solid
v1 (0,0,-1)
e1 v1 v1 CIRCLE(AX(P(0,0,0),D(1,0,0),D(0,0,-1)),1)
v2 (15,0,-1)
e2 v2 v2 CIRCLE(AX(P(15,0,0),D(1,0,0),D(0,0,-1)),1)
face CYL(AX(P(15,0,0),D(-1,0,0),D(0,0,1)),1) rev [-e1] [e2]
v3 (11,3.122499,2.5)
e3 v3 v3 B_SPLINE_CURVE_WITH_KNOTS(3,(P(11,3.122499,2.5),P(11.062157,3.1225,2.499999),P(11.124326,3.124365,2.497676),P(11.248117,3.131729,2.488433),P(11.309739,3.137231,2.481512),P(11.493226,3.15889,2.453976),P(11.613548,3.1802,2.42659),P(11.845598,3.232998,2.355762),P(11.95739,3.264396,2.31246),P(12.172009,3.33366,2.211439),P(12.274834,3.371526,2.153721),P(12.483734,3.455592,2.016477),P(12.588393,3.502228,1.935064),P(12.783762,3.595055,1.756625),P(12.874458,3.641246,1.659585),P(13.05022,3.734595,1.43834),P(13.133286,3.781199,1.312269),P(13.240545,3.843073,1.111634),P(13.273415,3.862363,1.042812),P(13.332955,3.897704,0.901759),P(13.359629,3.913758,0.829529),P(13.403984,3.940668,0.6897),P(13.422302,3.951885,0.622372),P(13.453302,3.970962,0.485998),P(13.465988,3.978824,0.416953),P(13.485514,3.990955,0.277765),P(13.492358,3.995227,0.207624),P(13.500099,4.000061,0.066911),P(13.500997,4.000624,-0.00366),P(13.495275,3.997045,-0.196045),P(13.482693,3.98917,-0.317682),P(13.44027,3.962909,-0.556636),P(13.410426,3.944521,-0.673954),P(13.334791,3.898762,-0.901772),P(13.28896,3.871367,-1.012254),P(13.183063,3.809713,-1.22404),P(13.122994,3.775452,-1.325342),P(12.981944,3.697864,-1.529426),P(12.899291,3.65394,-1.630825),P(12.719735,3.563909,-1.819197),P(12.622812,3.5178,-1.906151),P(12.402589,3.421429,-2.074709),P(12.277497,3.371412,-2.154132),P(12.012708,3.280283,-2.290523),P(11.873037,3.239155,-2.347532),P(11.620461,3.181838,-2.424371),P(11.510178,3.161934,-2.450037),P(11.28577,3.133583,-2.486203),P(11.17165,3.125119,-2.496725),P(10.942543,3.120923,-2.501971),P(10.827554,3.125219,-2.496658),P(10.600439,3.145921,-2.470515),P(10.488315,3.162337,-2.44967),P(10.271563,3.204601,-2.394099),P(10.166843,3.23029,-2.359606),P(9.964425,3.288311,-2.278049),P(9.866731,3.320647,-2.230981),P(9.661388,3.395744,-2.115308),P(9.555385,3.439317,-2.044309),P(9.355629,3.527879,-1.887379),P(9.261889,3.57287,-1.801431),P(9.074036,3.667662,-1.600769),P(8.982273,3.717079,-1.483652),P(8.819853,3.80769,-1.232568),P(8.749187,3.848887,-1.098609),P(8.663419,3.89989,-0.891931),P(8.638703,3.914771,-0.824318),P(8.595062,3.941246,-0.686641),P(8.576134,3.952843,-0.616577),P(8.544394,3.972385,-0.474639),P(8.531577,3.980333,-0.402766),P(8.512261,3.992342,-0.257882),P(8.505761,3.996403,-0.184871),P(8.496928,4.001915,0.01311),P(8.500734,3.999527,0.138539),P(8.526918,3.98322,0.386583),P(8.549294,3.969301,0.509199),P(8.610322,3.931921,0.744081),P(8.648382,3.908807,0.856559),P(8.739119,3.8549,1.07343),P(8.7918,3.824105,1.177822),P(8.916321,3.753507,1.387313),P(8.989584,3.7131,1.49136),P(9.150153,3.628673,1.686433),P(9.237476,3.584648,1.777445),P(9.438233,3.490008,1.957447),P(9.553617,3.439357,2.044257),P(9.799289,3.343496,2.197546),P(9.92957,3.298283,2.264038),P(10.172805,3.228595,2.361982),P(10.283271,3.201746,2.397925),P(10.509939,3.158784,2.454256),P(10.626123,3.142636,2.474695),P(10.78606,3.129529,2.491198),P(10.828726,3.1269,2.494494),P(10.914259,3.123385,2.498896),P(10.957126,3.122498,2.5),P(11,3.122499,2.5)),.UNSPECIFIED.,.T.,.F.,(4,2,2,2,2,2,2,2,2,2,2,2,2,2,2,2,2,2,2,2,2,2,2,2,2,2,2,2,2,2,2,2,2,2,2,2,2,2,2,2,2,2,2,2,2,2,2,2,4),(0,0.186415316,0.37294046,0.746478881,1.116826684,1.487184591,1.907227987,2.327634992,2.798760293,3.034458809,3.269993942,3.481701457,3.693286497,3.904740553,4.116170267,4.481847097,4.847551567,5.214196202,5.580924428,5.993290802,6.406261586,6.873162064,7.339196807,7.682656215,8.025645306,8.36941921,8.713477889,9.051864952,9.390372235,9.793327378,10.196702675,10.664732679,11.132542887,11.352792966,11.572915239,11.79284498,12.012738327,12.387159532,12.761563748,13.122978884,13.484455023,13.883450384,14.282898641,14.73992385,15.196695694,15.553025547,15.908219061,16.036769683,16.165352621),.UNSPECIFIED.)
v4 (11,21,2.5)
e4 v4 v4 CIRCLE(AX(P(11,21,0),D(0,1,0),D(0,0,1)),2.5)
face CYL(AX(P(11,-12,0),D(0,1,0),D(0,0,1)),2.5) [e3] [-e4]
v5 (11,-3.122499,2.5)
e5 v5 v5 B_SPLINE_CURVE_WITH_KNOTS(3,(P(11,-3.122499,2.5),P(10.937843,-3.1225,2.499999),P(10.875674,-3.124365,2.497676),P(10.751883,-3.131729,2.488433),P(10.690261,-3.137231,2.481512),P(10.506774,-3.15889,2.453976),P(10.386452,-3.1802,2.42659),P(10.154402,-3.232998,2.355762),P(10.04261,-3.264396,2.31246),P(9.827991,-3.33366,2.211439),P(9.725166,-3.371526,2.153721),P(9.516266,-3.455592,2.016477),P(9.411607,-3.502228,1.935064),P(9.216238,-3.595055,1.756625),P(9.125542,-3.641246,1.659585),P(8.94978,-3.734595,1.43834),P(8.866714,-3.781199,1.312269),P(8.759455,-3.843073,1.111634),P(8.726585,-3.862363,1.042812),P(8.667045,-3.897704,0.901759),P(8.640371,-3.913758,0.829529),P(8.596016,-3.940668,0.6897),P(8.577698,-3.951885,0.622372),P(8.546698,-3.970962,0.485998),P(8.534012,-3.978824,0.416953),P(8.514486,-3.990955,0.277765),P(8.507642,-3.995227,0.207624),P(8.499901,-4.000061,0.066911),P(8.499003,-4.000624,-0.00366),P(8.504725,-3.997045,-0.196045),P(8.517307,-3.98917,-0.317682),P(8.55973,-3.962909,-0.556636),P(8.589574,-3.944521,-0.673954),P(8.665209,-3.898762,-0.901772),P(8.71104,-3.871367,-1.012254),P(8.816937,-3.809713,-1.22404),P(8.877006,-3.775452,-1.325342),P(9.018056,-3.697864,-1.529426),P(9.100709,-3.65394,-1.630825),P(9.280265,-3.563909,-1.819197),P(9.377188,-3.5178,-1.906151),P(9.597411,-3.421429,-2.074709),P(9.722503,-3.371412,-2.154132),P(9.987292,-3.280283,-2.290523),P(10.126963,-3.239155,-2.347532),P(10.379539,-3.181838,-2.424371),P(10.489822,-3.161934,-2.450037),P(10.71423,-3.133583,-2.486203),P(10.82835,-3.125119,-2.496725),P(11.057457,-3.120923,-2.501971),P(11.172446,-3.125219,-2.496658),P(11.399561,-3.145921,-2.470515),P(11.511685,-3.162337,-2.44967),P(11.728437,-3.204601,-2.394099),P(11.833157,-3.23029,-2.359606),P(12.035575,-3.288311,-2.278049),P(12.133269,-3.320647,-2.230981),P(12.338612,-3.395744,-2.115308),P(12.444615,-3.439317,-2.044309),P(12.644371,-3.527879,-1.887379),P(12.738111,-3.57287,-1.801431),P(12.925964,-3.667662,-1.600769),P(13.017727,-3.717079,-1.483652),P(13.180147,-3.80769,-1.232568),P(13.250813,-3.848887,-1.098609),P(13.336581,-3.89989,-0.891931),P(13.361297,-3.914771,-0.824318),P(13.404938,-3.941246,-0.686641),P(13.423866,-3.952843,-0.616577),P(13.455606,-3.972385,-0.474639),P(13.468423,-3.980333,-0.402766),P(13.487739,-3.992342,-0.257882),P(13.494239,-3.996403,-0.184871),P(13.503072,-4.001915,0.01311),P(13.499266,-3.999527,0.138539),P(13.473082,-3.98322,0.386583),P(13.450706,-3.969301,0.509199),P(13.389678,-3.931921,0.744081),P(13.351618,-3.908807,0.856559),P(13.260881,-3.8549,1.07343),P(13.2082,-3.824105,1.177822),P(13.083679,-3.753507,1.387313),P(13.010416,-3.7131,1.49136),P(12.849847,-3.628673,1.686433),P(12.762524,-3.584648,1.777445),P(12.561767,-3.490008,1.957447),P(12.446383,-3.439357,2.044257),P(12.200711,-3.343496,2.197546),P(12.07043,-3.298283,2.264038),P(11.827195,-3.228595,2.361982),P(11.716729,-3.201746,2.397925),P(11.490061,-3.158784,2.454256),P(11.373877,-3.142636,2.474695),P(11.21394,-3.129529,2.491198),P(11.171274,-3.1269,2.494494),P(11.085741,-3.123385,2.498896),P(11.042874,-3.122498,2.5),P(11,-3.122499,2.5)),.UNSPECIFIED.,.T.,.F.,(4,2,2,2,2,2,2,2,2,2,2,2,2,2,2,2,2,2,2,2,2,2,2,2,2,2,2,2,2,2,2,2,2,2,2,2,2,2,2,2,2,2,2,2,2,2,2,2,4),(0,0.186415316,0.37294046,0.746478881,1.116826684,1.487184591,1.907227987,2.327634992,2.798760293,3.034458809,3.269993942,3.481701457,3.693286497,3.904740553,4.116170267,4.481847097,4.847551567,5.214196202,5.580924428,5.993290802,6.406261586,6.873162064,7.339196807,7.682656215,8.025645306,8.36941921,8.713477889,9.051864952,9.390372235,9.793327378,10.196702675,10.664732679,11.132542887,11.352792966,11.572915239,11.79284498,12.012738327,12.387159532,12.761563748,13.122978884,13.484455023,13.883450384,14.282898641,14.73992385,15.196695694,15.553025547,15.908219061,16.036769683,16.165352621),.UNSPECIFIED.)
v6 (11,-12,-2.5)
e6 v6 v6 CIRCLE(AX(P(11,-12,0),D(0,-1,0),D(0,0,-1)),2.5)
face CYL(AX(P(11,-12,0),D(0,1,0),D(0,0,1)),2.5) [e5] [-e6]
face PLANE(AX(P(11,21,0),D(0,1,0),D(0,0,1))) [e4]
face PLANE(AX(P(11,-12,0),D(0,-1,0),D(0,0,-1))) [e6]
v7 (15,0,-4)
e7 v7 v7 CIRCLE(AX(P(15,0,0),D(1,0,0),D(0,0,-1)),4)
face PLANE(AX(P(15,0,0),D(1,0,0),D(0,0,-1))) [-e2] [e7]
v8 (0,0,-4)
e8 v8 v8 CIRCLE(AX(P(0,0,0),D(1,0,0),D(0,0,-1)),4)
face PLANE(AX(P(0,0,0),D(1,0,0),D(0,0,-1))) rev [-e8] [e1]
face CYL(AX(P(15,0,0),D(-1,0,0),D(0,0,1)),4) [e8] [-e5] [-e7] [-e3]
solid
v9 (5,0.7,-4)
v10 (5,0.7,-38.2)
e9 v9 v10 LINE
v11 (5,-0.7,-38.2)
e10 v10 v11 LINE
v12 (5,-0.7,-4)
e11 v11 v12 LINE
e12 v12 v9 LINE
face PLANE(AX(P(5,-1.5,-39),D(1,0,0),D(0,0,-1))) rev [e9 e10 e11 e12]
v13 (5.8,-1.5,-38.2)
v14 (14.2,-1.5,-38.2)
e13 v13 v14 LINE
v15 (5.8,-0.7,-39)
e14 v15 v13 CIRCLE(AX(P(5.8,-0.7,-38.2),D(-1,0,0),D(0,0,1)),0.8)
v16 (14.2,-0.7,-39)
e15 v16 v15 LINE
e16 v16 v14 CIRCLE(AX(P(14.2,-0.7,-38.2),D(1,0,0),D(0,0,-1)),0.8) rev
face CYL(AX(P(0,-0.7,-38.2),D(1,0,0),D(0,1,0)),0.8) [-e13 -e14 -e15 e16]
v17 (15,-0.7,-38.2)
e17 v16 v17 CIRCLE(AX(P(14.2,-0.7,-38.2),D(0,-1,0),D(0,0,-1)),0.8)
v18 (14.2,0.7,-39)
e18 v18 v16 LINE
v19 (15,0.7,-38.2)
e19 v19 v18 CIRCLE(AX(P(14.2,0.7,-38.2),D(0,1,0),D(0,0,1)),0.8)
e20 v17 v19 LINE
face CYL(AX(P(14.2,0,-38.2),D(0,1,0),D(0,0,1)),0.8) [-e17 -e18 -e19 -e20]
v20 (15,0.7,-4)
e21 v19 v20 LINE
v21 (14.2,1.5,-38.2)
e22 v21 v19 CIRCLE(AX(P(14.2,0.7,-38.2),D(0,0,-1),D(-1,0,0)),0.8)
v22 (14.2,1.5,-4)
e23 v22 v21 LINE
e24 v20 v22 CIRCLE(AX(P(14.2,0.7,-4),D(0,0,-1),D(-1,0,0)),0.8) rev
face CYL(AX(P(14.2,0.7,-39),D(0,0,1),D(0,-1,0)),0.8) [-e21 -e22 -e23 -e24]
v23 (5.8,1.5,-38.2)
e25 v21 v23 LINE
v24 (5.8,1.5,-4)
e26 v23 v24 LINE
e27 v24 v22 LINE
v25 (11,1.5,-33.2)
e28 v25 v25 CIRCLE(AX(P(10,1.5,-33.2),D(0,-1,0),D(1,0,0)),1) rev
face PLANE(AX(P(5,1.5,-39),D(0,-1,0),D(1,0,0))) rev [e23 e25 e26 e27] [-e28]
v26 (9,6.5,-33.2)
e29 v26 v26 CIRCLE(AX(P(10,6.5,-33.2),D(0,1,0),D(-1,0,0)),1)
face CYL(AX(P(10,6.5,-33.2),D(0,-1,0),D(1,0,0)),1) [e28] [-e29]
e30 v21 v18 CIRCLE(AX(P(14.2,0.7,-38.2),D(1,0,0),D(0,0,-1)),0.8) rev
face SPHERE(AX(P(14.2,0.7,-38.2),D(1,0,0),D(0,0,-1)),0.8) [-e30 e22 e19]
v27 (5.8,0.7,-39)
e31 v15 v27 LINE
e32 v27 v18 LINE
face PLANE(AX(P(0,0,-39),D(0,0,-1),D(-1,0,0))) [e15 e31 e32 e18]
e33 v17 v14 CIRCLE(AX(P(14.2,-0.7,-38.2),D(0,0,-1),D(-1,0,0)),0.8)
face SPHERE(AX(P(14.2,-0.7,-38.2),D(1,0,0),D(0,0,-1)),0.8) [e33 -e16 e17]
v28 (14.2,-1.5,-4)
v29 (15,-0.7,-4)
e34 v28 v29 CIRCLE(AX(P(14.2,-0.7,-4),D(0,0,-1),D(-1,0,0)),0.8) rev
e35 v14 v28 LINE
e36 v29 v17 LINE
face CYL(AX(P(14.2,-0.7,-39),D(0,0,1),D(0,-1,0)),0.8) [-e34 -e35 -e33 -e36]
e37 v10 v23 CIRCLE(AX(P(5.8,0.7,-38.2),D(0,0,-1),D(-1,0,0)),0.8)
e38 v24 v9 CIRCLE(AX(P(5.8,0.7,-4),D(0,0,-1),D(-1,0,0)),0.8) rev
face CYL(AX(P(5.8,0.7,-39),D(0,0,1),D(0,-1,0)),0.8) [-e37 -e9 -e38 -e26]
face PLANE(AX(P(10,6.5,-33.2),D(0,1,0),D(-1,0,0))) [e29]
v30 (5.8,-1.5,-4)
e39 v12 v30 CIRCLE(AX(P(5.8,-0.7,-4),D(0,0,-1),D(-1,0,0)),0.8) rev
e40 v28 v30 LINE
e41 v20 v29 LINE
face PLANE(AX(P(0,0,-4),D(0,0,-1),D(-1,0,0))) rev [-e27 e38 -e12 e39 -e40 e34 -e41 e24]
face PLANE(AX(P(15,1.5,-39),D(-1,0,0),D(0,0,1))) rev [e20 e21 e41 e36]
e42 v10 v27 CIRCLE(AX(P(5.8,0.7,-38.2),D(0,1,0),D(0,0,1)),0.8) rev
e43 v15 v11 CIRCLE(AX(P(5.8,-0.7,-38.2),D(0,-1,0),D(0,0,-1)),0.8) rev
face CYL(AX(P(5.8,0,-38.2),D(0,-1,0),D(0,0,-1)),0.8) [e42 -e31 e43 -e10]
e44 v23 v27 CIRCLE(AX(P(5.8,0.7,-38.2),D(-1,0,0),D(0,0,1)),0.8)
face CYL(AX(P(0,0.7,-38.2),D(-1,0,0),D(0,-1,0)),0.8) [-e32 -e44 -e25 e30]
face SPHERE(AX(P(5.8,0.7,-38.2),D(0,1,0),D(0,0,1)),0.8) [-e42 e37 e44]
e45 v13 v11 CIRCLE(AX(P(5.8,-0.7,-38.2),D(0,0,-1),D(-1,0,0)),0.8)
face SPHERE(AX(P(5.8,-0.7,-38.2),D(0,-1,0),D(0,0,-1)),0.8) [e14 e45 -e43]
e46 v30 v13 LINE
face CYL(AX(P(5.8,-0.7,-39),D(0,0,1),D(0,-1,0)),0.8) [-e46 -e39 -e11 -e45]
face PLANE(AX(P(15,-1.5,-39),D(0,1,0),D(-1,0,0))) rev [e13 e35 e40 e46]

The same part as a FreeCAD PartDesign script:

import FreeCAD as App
import Part
import Sketcher
from FreeCAD import Vector
Q = App.Units.Quantity


def edges_at(feature, points):
    """Names of the edges that pass closest to the given points."""
    edges = feature.Shape.Edges
    near = lambda p: min(range(len(edges)), key=lambda i: edges[i].distToShape(Part.Vertex(*p))[0])
    return sorted({f"Edge{near(p) + 1}" for p in points})

doc = App.newDocument("Part")
body = doc.addObject("PartDesign::Body", "Body")

sketch1 = body.newObject("Sketcher::SketchObject", "Sketch")
sketch1.AttachmentSupport = (doc.getObject("YZ_Plane"), [""])
sketch1.MapMode = "FlatFace"
sketch1.addGeometry([
    Part.Circle(Vector(0, 0, 0), Vector(0, 0, 1), 4),
    Part.Circle(Vector(0, 0, 0), Vector(0, 0, 1), 1),
], False)
sketch1.addConstraint([
    Sketcher.Constraint("Coincident", 0, 3, -1, 1),
    Sketcher.Constraint("Coincident", 1, 3, -1, 1),
    Sketcher.Constraint("Diameter", 0, Q("8 mm")),
    Sketcher.Constraint("Diameter", 1, Q("2 mm")),
])
pad1 = body.newObject("PartDesign::Pad", "Pad")
pad1.Profile = sketch1
pad1.Length = 15
body2 = doc.addObject("PartDesign::Body", "Body001")

sketch2 = body2.newObject("Sketcher::SketchObject", "Sketch001")
sketch2.AttachmentSupport = (doc.getObject("XZ_Plane001"), [""])
sketch2.MapMode = "FlatFace"
sketch2.AttachmentOffset = App.Placement(Vector(0, 0, -4), App.Rotation())
sketch2.addGeometry(Part.Circle(Vector(11, 0, 0), Vector(0, 0, 1), 2.5), False)
sketch2.addConstraint([
    Sketcher.Constraint("PointOnObject", 0, 3, -1),
    Sketcher.Constraint("Diameter", 0, Q("5 mm")),
    Sketcher.Constraint("DistanceX", -1, 1, 0, 3, Q("11 mm")),
])
pad2 = body2.newObject("PartDesign::Pad", "Pad001")
pad2.Profile = sketch2
pad2.Length = 17
pad2.Reversed = True
body.AllowCompound = True
doc.recompute()

boolean = body.newObject("PartDesign::Boolean", "Boolean")
boolean.Type = "Fuse"
boolean.addObjects([body2])

sketch3 = body.newObject("Sketcher::SketchObject", "Sketch002")
sketch3.AttachmentSupport = (doc.getObject("XZ_Plane"), [""])
sketch3.MapMode = "FlatFace"
sketch3.AttachmentOffset = App.Placement(Vector(0, 0, -4), App.Rotation())
sketch3.addGeometry(Part.Circle(Vector(11, 0, 0), Vector(0, 0, 1), 2.5), False)
sketch3.addConstraint([
    Sketcher.Constraint("PointOnObject", 0, 3, -1),
    Sketcher.Constraint("Diameter", 0, Q("5 mm")),
    Sketcher.Constraint("DistanceX", -1, 1, 0, 3, Q("11 mm")),
])
pad3 = body.newObject("PartDesign::Pad", "Pad002")
pad3.Profile = sketch3
pad3.Length = 16

sketch4 = body.newObject("Sketcher::SketchObject", "Sketch003")
sketch4.AttachmentSupport = (doc.getObject("YZ_Plane"), [""])
sketch4.MapMode = "FlatFace"
sketch4.AttachmentOffset = App.Placement(Vector(0, 0, 15), App.Rotation())
sketch4.addGeometry(Part.Circle(Vector(0, 0, 0), Vector(0, 0, 1), 1), False)
sketch4.addConstraint([
    Sketcher.Constraint("Coincident", 0, 3, -1, 1),
    Sketcher.Constraint("Diameter", 0, Q("2 mm")),
])
pocket1 = body.newObject("PartDesign::Pocket", "Pocket")
pocket1.Profile = sketch4
pocket1.Type = "ThroughAll"
body3 = doc.addObject("PartDesign::Body", "Body002")

sketch5 = body3.newObject("Sketcher::SketchObject", "Sketch004")
sketch5.AttachmentSupport = (doc.getObject("XY_Plane002"), [""])
sketch5.MapMode = "FlatFace"
sketch5.AttachmentOffset = App.Placement(Vector(0, 0, -4), App.Rotation())
sketch5.addGeometry([
    Part.LineSegment(Vector(15, 1.5, 0), Vector(15, -1.5, 0)),
    Part.LineSegment(Vector(15, -1.5, 0), Vector(5, -1.5, 0)),
    Part.LineSegment(Vector(5, -1.5, 0), Vector(5, 1.5, 0)),
    Part.LineSegment(Vector(5, 1.5, 0), Vector(15, 1.5, 0)),
], False)
sketch5.addConstraint([
    Sketcher.Constraint("Coincident", 0, 2, 1, 1),
    Sketcher.Constraint("Coincident", 1, 2, 2, 1),
    Sketcher.Constraint("Coincident", 2, 2, 3, 1),
    Sketcher.Constraint("Coincident", 3, 2, 0, 1),
    Sketcher.Constraint("Vertical", 0),
    Sketcher.Constraint("Horizontal", 1),
    Sketcher.Constraint("Vertical", 2),
    Sketcher.Constraint("Horizontal", 3),
    Sketcher.Constraint("DistanceX", 1, 2, 1, 1, Q("10 mm")),
    Sketcher.Constraint("DistanceY", 0, 2, 0, 1, Q("3 mm")),
    Sketcher.Constraint("DistanceX", -1, 1, 0, 2, Q("15 mm")),
    Sketcher.Constraint("DistanceY", 0, 2, -1, 1, Q("1.5 mm")),
])
pad4 = body3.newObject("PartDesign::Pad", "Pad003")
pad4.Profile = sketch5
pad4.Length = 35
pad4.Reversed = True
doc.recompute()

fillet = body3.newObject("PartDesign::Fillet", "Fillet")
fillet.Base = (pad4, edges_at(pad4, [
    (10, -1.5, -39),
    (5, 0, -39),
    (10, 1.5, -39),
    (5, 1.5, -21.5),
    (5, -1.5, -21.5),
    (15, -1.5, -21.5),
    (15, 1.5, -21.5),
    (15, 0, -39),
]))
fillet.Radius = 0.8

sketch6 = body3.newObject("Sketcher::SketchObject", "Sketch005")
sketch6.AttachmentSupport = (doc.getObject("XZ_Plane002"), [""])
sketch6.MapMode = "FlatFace"
sketch6.AttachmentOffset = App.Placement(Vector(0, 0, -1.5), App.Rotation())
sketch6.addGeometry(Part.Circle(Vector(10, -33.2, 0), Vector(0, 0, 1), 1), False)
sketch6.addConstraint([
    Sketcher.Constraint("Diameter", 0, Q("2 mm")),
    Sketcher.Constraint("DistanceX", -1, 1, 0, 3, Q("10 mm")),
    Sketcher.Constraint("DistanceY", 0, 3, -1, 1, Q("33.2 mm")),
])
pad5 = body3.newObject("PartDesign::Pad", "Pad004")
pad5.Profile = sketch6
pad5.Length = 5
pad5.Reversed = True

doc.recompute()
